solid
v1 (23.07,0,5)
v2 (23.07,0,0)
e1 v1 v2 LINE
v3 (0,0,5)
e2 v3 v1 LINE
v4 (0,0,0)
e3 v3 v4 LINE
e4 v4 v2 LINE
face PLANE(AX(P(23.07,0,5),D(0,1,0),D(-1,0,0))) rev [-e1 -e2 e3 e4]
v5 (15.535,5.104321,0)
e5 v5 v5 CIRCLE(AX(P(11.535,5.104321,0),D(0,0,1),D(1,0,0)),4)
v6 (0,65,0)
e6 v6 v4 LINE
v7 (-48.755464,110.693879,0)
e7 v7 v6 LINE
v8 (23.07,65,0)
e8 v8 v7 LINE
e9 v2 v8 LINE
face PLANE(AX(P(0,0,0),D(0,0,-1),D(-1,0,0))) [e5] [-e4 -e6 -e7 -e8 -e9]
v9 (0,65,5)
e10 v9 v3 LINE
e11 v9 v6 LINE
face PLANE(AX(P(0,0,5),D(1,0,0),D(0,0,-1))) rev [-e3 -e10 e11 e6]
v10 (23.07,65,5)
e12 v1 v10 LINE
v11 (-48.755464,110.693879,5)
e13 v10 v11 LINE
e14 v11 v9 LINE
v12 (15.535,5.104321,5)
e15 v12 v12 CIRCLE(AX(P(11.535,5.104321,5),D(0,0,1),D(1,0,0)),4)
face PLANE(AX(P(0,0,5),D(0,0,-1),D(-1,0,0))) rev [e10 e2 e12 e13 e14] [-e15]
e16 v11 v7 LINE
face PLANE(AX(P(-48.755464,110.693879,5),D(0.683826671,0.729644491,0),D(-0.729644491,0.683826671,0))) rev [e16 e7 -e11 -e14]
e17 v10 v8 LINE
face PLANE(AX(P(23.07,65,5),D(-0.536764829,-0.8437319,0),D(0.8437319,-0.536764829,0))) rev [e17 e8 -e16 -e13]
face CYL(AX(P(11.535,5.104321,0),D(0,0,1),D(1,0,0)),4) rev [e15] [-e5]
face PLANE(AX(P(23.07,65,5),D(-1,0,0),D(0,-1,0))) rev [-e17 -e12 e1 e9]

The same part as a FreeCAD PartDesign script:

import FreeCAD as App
import Part
import Sketcher
Q = App.Units.Quantity

doc = App.newDocument("Part")
body = doc.addObject("PartDesign::Body", "Body")

sketch1 = doc.addObject("Sketcher::SketchObject", "Sketch")
body.addObject(sketch1)
sketch1.AttachmentSupport = (doc.XY_Plane, [""])
sketch1.MapMode = "FlatFace"
sketch1.addGeometry(Part.LineSegment(App.Vector(0, 65, 0), App.Vector(0, 0, 0)), False)
sketch1.addGeometry(Part.LineSegment(App.Vector(0, 0, 0), App.Vector(23, 0, 0)), False)
sketch1.addGeometry(Part.LineSegment(App.Vector(23, 0, 0), App.Vector(23, 65, 0)), False)
sketch1.addGeometry(Part.LineSegment(App.Vector(23, 65, 0), App.Vector(-49, 111, 0)), False)
sketch1.addGeometry(Part.LineSegment(App.Vector(-49, 111, 0), App.Vector(0, 65, 0)), False)
sketch1.addConstraint(Sketcher.Constraint("Coincident", 0, 2, 1, 1))
sketch1.addConstraint(Sketcher.Constraint("Coincident", 1, 2, 2, 1))
sketch1.addConstraint(Sketcher.Constraint("Coincident", 2, 2, 3, 1))
sketch1.addConstraint(Sketcher.Constraint("Coincident", 3, 2, 4, 1))
sketch1.addConstraint(Sketcher.Constraint("Coincident", 4, 2, 0, 1))
sketch1.addConstraint(Sketcher.Constraint("Vertical", 0))
sketch1.addConstraint(Sketcher.Constraint("Horizontal", 1))
sketch1.addConstraint(Sketcher.Constraint("Vertical", 2))
sketch1.addConstraint(Sketcher.Constraint("Coincident", 0, 2, -1, 1))
sketch1.addConstraint(Sketcher.Constraint("Horizontal", 2, 2, 4, 2))
sketch1.addConstraint(Sketcher.Constraint("DistanceY", 0, 2, 0, 1, Q("65 mm")))
sketch1.addConstraint(Sketcher.Constraint("DistanceX", 1, 1, 1, 2, Q("23.07 mm")))
sketch1.addConstraint(Sketcher.Constraint("Distance", 4, Q("66.820849 mm")))
sketch1.addConstraint(Sketcher.Constraint("DistanceY", -1, 1, 3, 2, Q("110.693879 mm")))
pad1 = doc.addObject("PartDesign::Pad", "Pad")
body.addObject(pad1)
pad1.Profile = sketch1
pad1.Length = 5

sketch2 = doc.addObject("Sketcher::SketchObject", "Sketch001")
body.addObject(sketch2)
sketch2.AttachmentSupport = (doc.XY_Plane, [""])
sketch2.MapMode = "FlatFace"
sketch2.AttachmentOffset = App.Placement(App.Vector(0, 0, 5), App.Rotation())
sketch2.addGeometry(Part.Circle(App.Vector(11.5, 5.1, 0), App.Vector(0, 0, 1), 4), False)
sketch2.addGeometry(Part.Circle(App.Vector(11.5, 59.9, 0), App.Vector(0, 0, 1), 4), False)
sketch2.addConstraint(Sketcher.Constraint("Equal", 0, 1))
sketch2.addConstraint(Sketcher.Constraint("Vertical", 0, 3, 1, 3))
sketch2.addConstraint(Sketcher.Constraint("Diameter", 0, Q("8 mm")))
sketch2.addConstraint(Sketcher.Constraint("DistanceX", -1, 1, 0, 3, Q("11.535 mm")))
sketch2.addConstraint(Sketcher.Constraint("DistanceY", -1, 1, 0, 3, Q("5.104321 mm")))
sketch2.addConstraint(Sketcher.Constraint("DistanceY", -1, 1, 1, 3, Q("59.895679 mm")))
pocket1 = doc.addObject("PartDesign::Pocket", "Pocket")
body.addObject(pocket1)
pocket1.Profile = sketch2
pocket1.Length = 5

sketch3 = doc.addObject("Sketcher::SketchObject", "Sketch002")
body.addObject(sketch3)
sketch3.AttachmentSupport = (doc.XY_Plane, [""])
sketch3.MapMode = "FlatFace"
sketch3.AttachmentOffset = App.Placement(App.Vector(0, 0, 5), App.Rotation())
sketch3.addGeometry(Part.Circle(App.Vector(11.5, 59.9, 0), App.Vector(0, 0, 1), 4), False)
sketch3.addConstraint(Sketcher.Constraint("Diameter", 0, Q("8 mm")))
sketch3.addConstraint(Sketcher.Constraint("DistanceX", -1, 1, 0, 3, Q("11.535 mm")))
sketch3.addConstraint(Sketcher.Constraint("DistanceY", -1, 1, 0, 3, Q("59.895679 mm")))
pad2 = doc.addObject("PartDesign::Pad", "Pad001")
body.addObject(pad2)
pad2.Profile = sketch3
pad2.Length = 5
pad2.Reversed = True

doc.recompute()
